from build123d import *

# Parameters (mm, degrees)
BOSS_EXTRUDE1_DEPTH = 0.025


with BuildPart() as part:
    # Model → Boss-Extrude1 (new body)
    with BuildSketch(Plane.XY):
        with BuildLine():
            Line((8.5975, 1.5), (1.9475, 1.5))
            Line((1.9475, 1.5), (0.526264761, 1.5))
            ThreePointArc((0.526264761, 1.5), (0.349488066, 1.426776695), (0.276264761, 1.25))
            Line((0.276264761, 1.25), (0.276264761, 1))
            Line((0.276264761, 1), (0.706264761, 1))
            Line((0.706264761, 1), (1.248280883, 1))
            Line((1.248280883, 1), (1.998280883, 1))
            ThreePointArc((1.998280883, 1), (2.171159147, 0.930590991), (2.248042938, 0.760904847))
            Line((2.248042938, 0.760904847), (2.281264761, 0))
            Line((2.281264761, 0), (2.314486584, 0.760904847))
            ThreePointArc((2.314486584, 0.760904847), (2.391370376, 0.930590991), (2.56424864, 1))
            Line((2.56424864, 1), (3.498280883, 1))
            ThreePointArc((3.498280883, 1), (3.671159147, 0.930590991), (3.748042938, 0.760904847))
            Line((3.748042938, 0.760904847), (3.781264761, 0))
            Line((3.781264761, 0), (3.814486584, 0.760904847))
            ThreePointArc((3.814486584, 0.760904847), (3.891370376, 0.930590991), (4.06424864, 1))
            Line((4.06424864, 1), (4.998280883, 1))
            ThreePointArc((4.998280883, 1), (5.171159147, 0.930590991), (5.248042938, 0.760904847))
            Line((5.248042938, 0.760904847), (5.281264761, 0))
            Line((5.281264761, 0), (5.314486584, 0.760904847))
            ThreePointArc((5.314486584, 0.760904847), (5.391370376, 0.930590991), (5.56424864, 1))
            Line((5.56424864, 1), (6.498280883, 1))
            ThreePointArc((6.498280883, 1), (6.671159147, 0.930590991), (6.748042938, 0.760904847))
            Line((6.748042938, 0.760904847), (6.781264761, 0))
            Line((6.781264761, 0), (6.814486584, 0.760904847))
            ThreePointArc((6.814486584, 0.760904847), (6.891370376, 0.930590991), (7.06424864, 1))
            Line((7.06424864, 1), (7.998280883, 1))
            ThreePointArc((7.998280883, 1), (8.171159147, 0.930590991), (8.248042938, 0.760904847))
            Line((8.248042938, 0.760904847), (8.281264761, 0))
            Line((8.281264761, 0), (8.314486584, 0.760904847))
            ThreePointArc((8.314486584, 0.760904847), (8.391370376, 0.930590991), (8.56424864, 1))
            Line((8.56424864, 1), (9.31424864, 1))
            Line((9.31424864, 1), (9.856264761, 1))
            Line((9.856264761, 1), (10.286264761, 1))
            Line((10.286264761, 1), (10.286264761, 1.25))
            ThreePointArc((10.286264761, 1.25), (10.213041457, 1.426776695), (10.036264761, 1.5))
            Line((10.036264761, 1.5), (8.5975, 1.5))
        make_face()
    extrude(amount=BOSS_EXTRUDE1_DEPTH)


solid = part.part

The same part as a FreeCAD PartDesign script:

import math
import FreeCAD as App
import Part
import Sketcher
from FreeCAD import Vector
Q = App.Units.Quantity

doc = App.newDocument("Part")
body = doc.addObject("PartDesign::Body", "Body")

# Sketch on XY plane
sketch1 = doc.addObject("Sketcher::SketchObject", "Sketch")
body.addObject(sketch1)
sketch1.AttachmentSupport = (doc.XY_Plane, [""])
sketch1.MapMode = "FlatFace"
sketch1.addGeometry([
    Part.ArcOfCircle(Part.Circle(Vector(0.53, 1.25, 0), Vector(0, 0, 1), 0.25), math.radians(90), math.radians(180)),  # 0
    Part.LineSegment(Vector(0.28, 1.25, 0), Vector(0.28, 1, 0)),  # 1
    Part.LineSegment(Vector(0.28, 1, 0), Vector(2, 1, 0)),  # 2
    Part.ArcOfCircle(Part.Circle(Vector(2, 0.75, 0), Vector(0, 0, 1), 0.25), math.radians(2), math.radians(90)),  # 3
    Part.LineSegment(Vector(2.25, 0.76, 0), Vector(2.28, 0, 0)),  # 4
    Part.LineSegment(Vector(2.28, 0, 0), Vector(2.31, 0.76, 0)),  # 5
    Part.ArcOfCircle(Part.Circle(Vector(2.56, 0.75, 0), Vector(0, 0, 1), 0.25), math.radians(90), math.radians(177)),  # 6
    Part.LineSegment(Vector(2.56, 1, 0), Vector(3.5, 1, 0)),  # 7
    Part.ArcOfCircle(Part.Circle(Vector(3.5, 0.75, 0), Vector(0, 0, 1), 0.25), math.radians(2), math.radians(90)),  # 8
    Part.LineSegment(Vector(3.75, 0.76, 0), Vector(3.78, 0, 0)),  # 9
    Part.LineSegment(Vector(3.78, 0, 0), Vector(3.81, 0.76, 0)),  # 10
    Part.ArcOfCircle(Part.Circle(Vector(4.06, 0.75, 0), Vector(0, 0, 1), 0.25), math.radians(90), math.radians(177)),  # 11
    Part.LineSegment(Vector(4.06, 1, 0), Vector(5, 1, 0)),  # 12
    Part.ArcOfCircle(Part.Circle(Vector(5, 0.75, 0), Vector(0, 0, 1), 0.25), math.radians(2), math.radians(90)),  # 13
    Part.LineSegment(Vector(5.25, 0.76, 0), Vector(5.28, 0, 0)),  # 14
    Part.LineSegment(Vector(5.28, 0, 0), Vector(5.31, 0.76, 0)),  # 15
    Part.ArcOfCircle(Part.Circle(Vector(5.56, 0.75, 0), Vector(0, 0, 1), 0.25), math.radians(90), math.radians(177)),  # 16
    Part.LineSegment(Vector(5.56, 1, 0), Vector(6.5, 1, 0)),  # 17
    Part.ArcOfCircle(Part.Circle(Vector(6.5, 0.75, 0), Vector(0, 0, 1), 0.25), math.radians(2), math.radians(90)),  # 18
    Part.LineSegment(Vector(6.75, 0.76, 0), Vector(6.78, 0, 0)),  # 19
    Part.LineSegment(Vector(6.78, 0, 0), Vector(6.81, 0.76, 0)),  # 20
    Part.ArcOfCircle(Part.Circle(Vector(7.06, 0.75, 0), Vector(0, 0, 1), 0.25), math.radians(90), math.radians(177)),  # 21
    Part.LineSegment(Vector(7.06, 1, 0), Vector(8, 1, 0)),  # 22
    Part.ArcOfCircle(Part.Circle(Vector(8, 0.75, 0), Vector(0, 0, 1), 0.25), math.radians(2), math.radians(90)),  # 23
    Part.LineSegment(Vector(8.25, 0.76, 0), Vector(8.28, 0, 0)),  # 24
    Part.LineSegment(Vector(8.28, 0, 0), Vector(8.31, 0.76, 0)),  # 25
    Part.ArcOfCircle(Part.Circle(Vector(8.56, 0.75, 0), Vector(0, 0, 1), 0.25), math.radians(90), math.radians(177)),  # 26
    Part.LineSegment(Vector(8.56, 1, 0), Vector(10.29, 1, 0)),  # 27
    Part.LineSegment(Vector(10.29, 1, 0), Vector(10.29, 1.25, 0)),  # 28
    Part.ArcOfCircle(Part.Circle(Vector(10.04, 1.25, 0), Vector(0, 0, 1), 0.25), math.radians(0), math.radians(90)),  # 29
    Part.LineSegment(Vector(10.04, 1.5, 0), Vector(0.53, 1.5, 0)),  # 30
], False)
sketch1.addConstraint([
    Sketcher.Constraint("Tangent", 0, 2, 1, 1),
    Sketcher.Constraint("Coincident", 1, 2, 2, 1),
    Sketcher.Constraint("Tangent", 2, 2, 3, 2),
    Sketcher.Constraint("Tangent", 3, 1, 4, 1),
    Sketcher.Constraint("Coincident", 4, 2, 5, 1),
    Sketcher.Constraint("Tangent", 5, 2, 6, 2),
    Sketcher.Constraint("Tangent", 6, 1, 7, 1),
    Sketcher.Constraint("Tangent", 7, 2, 8, 2),
    Sketcher.Constraint("Tangent", 8, 1, 9, 1),
    Sketcher.Constraint("Coincident", 9, 2, 10, 1),
    Sketcher.Constraint("Tangent", 10, 2, 11, 2),
    Sketcher.Constraint("Tangent", 11, 1, 12, 1),
    Sketcher.Constraint("Tangent", 12, 2, 13, 2),
    Sketcher.Constraint("Tangent", 13, 1, 14, 1),
    Sketcher.Constraint("Coincident", 14, 2, 15, 1),
    Sketcher.Constraint("Tangent", 15, 2, 16, 2),
    Sketcher.Constraint("Tangent", 16, 1, 17, 1),
    Sketcher.Constraint("Tangent", 17, 2, 18, 2),
    Sketcher.Constraint("Tangent", 18, 1, 19, 1),
    Sketcher.Constraint("Coincident", 19, 2, 20, 1),
    Sketcher.Constraint("Tangent", 20, 2, 21, 2),
    Sketcher.Constraint("Tangent", 21, 1, 22, 1),
    Sketcher.Constraint("Tangent", 22, 2, 23, 2),
    Sketcher.Constraint("Tangent", 23, 1, 24, 1),
    Sketcher.Constraint("Coincident", 24, 2, 25, 1),
    Sketcher.Constraint("Tangent", 25, 2, 26, 2),
    Sketcher.Constraint("Tangent", 26, 1, 27, 1),
    Sketcher.Constraint("Coincident", 27, 2, 28, 1),
    Sketcher.Constraint("Tangent", 28, 2, 29, 1),
    Sketcher.Constraint("Tangent", 29, 2, 30, 1),
    Sketcher.Constraint("Tangent", 30, 2, 0, 1),
    Sketcher.Constraint("Vertical", 1),
    Sketcher.Constraint("Horizontal", 2),
    Sketcher.Constraint("Horizontal", 7),
    Sketcher.Constraint("Horizontal", 12),
    Sketcher.Constraint("Horizontal", 17),
    Sketcher.Constraint("Horizontal", 22),
    Sketcher.Constraint("Horizontal", 27),
    Sketcher.Constraint("Vertical", 28),
    Sketcher.Constraint("Horizontal", 30),
    Sketcher.Constraint("Equal", 0, 3),
    Sketcher.Constraint("Equal", 3, 6),
    Sketcher.Constraint("Equal", 6, 8),
    Sketcher.Constraint("Equal", 8, 11),
    Sketcher.Constraint("Equal", 11, 13),
    Sketcher.Constraint("Equal", 13, 16),
    Sketcher.Constraint("Equal", 16, 18),
    Sketcher.Constraint("Equal", 18, 21),
    Sketcher.Constraint("Equal", 21, 23),
    Sketcher.Constraint("Equal", 23, 26),
    Sketcher.Constraint("Equal", 26, 29),
    Sketcher.Constraint("PointOnObject", 4, 2, -1),
    Sketcher.Constraint("PointOnObject", 9, 2, -1),
    Sketcher.Constraint("PointOnObject", 14, 2, -1),
    Sketcher.Constraint("PointOnObject", 19, 2, -1),
    Sketcher.Constraint("PointOnObject", 24, 2, -1),
    Sketcher.Constraint("Parallel", 4, 9),
    Sketcher.Constraint("Parallel", 5, 10),
    Sketcher.Constraint("Parallel", 9, 14),
    Sketcher.Constraint("Parallel", 10, 15),
    Sketcher.Constraint("Parallel", 14, 19),
    Sketcher.Constraint("Parallel", 15, 20),
    Sketcher.Constraint("Parallel", 19, 24),
    Sketcher.Constraint("Parallel", 20, 25),
    Sketcher.Constraint("Horizontal", 3, 3, 6, 3),
    Sketcher.Constraint("Horizontal", 8, 3, 11, 3),
    Sketcher.Constraint("Horizontal", 13, 3, 16, 3),
    Sketcher.Constraint("Horizontal", 18, 3, 21, 3),
    Sketcher.Constraint("Horizontal", 23, 3, 26, 3),
    Sketcher.Constraint("Horizontal", 3, 1, 5, 2),
    Sketcher.Constraint("Equal", 7, 12),
    Sketcher.Constraint("Equal", 12, 17),
    Sketcher.Constraint("Equal", 17, 22),
    Sketcher.Constraint("Equal", 2, 27),
    Sketcher.Constraint("Radius", 0, Q("0.25 mm")),
    Sketcher.Constraint("DistanceY", -1, 1, 1, 2, Q("1 mm")),
    Sketcher.Constraint("Angle", 4, Q("-87.5 deg")),
    Sketcher.Constraint("DistanceX", 3, 3, 13, 3, Q("3 mm")),
    Sketcher.Constraint("DistanceX", 30, 2, 30, 1, Q("9.51 mm")),
    Sketcher.Constraint("DistanceY", 1, 2, 1, 1, Q("0.25 mm")),
    Sketcher.Constraint("DistanceX", -1, 1, 3, 3, Q("1.998281 mm")),
])
pad1 = doc.addObject("PartDesign::Pad", "Pad")
body.addObject(pad1)
pad1.Profile = sketch1
pad1.Length = 0.025

doc.recompute()
